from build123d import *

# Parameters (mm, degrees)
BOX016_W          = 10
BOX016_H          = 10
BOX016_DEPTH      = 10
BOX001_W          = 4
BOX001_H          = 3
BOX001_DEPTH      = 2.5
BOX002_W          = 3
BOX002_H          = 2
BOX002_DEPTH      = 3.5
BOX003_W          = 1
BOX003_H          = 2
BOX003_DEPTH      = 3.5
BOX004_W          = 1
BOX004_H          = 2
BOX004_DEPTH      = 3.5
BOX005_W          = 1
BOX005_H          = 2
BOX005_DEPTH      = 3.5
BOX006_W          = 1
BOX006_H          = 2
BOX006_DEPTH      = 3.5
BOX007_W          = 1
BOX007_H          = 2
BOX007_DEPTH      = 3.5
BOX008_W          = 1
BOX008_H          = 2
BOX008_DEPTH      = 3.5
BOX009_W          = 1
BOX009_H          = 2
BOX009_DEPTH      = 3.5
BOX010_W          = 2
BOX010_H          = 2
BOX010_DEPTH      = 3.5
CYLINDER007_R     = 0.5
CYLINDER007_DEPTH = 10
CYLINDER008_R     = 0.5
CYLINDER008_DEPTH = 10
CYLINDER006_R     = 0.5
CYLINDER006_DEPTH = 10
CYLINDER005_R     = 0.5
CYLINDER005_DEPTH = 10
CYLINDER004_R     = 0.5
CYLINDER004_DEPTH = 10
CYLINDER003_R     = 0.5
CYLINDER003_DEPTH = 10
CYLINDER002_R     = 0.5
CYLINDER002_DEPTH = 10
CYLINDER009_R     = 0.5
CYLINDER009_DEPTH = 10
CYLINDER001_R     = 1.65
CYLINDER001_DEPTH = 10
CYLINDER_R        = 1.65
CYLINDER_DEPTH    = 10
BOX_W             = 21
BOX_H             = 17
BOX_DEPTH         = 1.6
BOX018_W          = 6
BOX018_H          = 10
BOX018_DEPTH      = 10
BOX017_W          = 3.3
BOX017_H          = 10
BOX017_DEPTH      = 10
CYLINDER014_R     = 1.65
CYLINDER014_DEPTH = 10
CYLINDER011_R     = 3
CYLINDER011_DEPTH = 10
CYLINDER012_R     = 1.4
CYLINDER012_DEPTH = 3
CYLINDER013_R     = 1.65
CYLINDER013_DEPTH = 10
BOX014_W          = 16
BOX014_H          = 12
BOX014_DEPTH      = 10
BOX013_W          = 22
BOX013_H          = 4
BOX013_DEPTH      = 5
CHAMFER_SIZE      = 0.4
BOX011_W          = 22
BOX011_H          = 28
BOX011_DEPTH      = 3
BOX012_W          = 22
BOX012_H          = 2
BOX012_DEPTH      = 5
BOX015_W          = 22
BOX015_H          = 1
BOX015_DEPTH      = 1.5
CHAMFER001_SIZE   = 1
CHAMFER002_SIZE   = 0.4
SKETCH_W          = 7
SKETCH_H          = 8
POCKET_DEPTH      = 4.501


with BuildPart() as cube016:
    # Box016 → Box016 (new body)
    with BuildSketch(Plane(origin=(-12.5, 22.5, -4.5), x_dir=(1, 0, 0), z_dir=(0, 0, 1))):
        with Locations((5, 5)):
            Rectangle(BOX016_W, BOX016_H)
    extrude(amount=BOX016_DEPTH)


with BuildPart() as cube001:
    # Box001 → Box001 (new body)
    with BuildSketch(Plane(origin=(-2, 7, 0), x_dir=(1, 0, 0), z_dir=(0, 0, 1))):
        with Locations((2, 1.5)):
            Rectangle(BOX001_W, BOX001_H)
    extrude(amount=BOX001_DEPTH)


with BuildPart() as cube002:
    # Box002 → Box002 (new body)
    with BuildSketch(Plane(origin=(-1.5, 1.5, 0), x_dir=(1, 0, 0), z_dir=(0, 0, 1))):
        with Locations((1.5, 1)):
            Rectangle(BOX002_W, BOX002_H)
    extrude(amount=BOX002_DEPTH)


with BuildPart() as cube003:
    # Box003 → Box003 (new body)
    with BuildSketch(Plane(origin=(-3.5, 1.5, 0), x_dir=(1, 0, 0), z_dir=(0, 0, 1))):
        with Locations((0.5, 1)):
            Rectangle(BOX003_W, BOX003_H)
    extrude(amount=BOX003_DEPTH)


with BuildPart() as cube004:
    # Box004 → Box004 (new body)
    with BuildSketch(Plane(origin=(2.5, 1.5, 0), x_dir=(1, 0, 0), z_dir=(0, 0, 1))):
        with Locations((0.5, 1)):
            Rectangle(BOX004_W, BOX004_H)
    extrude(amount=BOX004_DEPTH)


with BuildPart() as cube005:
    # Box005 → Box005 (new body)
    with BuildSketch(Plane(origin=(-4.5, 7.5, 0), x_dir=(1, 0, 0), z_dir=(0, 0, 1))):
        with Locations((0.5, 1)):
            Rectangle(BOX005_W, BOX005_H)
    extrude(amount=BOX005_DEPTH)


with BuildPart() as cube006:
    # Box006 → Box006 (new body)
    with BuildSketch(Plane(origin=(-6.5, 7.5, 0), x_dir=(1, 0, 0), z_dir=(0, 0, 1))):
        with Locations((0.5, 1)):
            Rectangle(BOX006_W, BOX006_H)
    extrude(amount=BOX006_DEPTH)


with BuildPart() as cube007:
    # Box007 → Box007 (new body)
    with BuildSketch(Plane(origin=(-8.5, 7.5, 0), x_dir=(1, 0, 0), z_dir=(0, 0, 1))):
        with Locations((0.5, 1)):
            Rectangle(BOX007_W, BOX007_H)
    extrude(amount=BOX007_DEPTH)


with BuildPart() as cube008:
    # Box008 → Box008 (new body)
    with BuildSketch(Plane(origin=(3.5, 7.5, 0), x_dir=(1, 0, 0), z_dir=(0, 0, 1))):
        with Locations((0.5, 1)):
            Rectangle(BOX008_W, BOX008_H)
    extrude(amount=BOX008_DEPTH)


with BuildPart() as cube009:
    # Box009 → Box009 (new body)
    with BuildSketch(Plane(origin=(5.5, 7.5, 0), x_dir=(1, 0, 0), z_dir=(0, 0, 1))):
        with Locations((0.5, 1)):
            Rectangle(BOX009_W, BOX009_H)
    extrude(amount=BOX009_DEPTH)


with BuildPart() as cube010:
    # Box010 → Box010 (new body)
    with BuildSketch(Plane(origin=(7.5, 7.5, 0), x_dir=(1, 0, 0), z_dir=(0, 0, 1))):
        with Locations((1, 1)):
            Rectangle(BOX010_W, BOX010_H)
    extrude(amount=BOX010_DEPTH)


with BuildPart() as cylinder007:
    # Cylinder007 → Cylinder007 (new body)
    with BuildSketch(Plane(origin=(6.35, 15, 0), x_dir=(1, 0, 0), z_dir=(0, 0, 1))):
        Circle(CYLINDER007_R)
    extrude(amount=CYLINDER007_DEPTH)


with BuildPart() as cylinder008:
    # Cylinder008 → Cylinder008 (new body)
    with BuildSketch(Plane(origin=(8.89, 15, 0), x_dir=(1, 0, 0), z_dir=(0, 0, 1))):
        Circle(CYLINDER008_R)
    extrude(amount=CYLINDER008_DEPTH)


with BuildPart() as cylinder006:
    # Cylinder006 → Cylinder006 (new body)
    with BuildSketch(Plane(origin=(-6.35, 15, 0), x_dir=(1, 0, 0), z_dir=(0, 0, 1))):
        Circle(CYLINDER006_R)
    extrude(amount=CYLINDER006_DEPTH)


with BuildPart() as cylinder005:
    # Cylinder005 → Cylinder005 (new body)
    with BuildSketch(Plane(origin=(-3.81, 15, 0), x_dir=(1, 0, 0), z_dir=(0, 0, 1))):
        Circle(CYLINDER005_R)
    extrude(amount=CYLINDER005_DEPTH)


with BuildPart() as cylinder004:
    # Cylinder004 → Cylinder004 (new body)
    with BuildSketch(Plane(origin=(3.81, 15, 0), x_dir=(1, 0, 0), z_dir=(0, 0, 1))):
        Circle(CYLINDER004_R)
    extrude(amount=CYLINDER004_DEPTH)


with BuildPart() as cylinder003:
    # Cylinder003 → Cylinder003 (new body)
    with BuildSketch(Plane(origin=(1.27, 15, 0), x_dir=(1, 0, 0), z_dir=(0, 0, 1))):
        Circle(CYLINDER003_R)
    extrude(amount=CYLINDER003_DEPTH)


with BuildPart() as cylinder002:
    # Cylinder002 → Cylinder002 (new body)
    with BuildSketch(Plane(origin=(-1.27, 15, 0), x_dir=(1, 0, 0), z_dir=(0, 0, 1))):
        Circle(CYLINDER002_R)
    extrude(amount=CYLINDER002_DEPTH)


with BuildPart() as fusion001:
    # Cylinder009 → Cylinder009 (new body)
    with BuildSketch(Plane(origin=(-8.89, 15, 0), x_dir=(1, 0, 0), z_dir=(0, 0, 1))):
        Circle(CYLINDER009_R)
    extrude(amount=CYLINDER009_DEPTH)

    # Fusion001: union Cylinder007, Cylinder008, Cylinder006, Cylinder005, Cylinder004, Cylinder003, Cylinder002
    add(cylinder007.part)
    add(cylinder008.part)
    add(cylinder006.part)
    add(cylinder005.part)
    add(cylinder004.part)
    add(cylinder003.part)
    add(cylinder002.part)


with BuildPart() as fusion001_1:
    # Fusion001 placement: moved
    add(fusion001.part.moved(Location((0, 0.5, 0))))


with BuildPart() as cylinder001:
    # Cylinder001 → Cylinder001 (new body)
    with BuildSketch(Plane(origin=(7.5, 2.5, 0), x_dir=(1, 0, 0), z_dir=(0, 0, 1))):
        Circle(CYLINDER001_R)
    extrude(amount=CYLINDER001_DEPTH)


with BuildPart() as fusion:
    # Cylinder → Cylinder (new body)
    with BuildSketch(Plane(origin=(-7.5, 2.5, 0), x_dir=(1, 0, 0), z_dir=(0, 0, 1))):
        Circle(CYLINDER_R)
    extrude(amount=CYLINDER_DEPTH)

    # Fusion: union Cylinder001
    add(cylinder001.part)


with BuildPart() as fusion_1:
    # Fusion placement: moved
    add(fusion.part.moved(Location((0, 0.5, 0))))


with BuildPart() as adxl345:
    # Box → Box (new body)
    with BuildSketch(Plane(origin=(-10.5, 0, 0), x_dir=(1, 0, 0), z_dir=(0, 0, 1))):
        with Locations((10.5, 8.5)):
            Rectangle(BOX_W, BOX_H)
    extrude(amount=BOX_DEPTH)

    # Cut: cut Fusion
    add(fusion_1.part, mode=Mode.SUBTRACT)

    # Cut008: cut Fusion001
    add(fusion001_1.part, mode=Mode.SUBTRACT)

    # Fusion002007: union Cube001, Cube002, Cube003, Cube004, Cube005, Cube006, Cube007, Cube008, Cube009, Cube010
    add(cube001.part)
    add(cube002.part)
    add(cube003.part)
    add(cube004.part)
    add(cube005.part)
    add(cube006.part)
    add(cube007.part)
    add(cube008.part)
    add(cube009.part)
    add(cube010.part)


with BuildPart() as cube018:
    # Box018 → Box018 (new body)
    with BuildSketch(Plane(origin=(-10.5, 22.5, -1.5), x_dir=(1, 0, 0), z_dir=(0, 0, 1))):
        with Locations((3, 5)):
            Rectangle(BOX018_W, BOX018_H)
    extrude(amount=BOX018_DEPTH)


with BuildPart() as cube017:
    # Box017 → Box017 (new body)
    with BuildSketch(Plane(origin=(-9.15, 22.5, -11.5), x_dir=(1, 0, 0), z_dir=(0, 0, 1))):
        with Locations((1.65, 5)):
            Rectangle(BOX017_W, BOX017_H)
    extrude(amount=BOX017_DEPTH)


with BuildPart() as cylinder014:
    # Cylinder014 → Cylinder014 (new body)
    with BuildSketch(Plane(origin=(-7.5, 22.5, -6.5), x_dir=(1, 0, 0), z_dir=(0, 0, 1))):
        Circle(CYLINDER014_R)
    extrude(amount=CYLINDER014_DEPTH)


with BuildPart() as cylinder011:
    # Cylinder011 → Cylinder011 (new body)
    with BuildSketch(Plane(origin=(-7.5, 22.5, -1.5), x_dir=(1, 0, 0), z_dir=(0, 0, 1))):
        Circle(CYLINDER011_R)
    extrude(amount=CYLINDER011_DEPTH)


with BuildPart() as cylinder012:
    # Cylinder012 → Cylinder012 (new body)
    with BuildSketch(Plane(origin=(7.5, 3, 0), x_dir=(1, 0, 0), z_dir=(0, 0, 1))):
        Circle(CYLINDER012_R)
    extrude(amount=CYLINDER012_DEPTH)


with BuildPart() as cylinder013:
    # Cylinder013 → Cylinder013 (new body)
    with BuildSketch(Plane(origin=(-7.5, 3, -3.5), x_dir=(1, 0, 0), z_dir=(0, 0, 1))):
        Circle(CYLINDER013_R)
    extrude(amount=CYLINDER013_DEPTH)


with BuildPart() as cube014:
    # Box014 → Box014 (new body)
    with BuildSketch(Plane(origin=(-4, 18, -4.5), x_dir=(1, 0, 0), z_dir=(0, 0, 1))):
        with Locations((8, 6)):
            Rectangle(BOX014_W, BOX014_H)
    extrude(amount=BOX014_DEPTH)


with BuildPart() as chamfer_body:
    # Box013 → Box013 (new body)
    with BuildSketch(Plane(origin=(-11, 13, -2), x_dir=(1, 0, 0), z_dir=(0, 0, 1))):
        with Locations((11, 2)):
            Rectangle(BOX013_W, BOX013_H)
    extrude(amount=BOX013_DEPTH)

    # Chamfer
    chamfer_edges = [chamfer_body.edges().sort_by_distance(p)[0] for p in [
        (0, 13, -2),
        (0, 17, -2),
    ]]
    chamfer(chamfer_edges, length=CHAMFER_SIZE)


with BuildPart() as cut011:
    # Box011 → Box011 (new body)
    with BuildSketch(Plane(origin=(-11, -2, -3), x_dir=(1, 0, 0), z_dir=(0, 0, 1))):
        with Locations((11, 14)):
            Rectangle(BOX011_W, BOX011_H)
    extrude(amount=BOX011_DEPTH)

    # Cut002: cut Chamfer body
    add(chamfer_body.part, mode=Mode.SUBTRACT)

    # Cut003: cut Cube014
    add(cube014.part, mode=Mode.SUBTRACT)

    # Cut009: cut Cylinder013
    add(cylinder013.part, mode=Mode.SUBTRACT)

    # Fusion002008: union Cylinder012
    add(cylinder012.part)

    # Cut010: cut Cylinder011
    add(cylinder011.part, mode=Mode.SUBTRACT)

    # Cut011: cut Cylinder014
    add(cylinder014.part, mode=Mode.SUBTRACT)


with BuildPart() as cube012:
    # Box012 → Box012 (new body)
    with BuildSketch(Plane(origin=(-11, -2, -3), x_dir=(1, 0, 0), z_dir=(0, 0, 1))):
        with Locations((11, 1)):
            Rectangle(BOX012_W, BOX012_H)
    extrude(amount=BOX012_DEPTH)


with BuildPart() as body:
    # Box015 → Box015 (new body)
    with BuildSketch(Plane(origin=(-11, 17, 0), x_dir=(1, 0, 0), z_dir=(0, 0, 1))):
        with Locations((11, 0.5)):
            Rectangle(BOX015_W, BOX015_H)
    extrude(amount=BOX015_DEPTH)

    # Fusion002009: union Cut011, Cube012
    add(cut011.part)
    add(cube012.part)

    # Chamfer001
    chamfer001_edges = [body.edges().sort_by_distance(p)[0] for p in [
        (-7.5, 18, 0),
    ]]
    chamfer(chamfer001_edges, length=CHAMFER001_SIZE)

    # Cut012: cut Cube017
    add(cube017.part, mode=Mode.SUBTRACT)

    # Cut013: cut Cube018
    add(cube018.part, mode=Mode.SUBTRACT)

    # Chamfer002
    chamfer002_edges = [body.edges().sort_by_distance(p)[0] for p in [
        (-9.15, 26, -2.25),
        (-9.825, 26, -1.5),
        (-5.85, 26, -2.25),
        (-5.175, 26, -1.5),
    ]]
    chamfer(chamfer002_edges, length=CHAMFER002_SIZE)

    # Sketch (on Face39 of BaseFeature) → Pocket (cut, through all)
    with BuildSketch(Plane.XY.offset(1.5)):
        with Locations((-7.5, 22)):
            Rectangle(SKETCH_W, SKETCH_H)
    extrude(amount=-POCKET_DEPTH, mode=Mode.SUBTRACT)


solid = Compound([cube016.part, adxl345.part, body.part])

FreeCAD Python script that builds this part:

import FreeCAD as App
import Part
import Sketcher
from FreeCAD import Vector


def edges_at(feature, points):
    """Names of the edges that pass closest to the given points."""
    edges = feature.Shape.Edges
    near = lambda p: min(range(len(edges)), key=lambda i: edges[i].distToShape(Part.Vertex(*p))[0])
    return sorted({f"Edge{near(p) + 1}" for p in points})

doc = App.newDocument("Part")
body = doc.addObject("PartDesign::Body", "Body")

# Sketch on XY plane
sketch1 = body.newObject("Sketcher::SketchObject", "Sketch")
sketch1.AttachmentSupport = (doc.getObject("XY_Plane"), [""])
sketch1.MapMode = "FlatFace"
sketch1.AttachmentOffset = App.Placement(Vector(0, 0, -4.5), App.Rotation())
sketch1.addGeometry([
    Part.LineSegment(Vector(-12, 32, 0), Vector(-12, 22, 0)),
    Part.LineSegment(Vector(-12, 22, 0), Vector(-2, 22, 0)),
    Part.LineSegment(Vector(-2, 22, 0), Vector(-2, 32, 0)),
    Part.LineSegment(Vector(-2, 32, 0), Vector(-12, 32, 0)),
], False)
sketch1.addConstraint([
    Sketcher.Constraint("Coincident", 0, 2, 1, 1),
    Sketcher.Constraint("Coincident", 1, 2, 2, 1),
    Sketcher.Constraint("Coincident", 2, 2, 3, 1),
    Sketcher.Constraint("Coincident", 3, 2, 0, 1),
    Sketcher.Constraint("Vertical", 0),
    Sketcher.Constraint("Horizontal", 1),
    Sketcher.Constraint("Vertical", 2),
    Sketcher.Constraint("Horizontal", 3),
    Sketcher.Constraint("Equal", 3, 0),
    Sketcher.Constraint("DistanceX", 1, 1, 1, 2, 10.0),
    Sketcher.Constraint("DistanceX", 0, 2, -1, 1, 12.5),
    Sketcher.Constraint("DistanceY", -1, 1, 0, 2, 22.5),
])
pad1 = body.newObject("PartDesign::Pad", "Pad")
pad1.Profile = sketch1
pad1.Length = 10
body2 = doc.addObject("PartDesign::Body", "Body001")

# Sketch on XY plane
sketch2 = body2.newObject("Sketcher::SketchObject", "Sketch001")
sketch2.AttachmentSupport = (doc.getObject("XY_Plane001"), [""])
sketch2.MapMode = "FlatFace"
sketch2.addGeometry([
    Part.LineSegment(Vector(-2, 10, 0), Vector(-2, 7, 0)),
    Part.LineSegment(Vector(-2, 7, 0), Vector(2, 7, 0)),
    Part.LineSegment(Vector(2, 7, 0), Vector(2, 10, 0)),
    Part.LineSegment(Vector(2, 10, 0), Vector(-2, 10, 0)),
], False)
sketch2.addConstraint([
    Sketcher.Constraint("Coincident", 0, 2, 1, 1),
    Sketcher.Constraint("Coincident", 1, 2, 2, 1),
    Sketcher.Constraint("Coincident", 2, 2, 3, 1),
    Sketcher.Constraint("Coincident", 3, 2, 0, 1),
    Sketcher.Constraint("Vertical", 0),
    Sketcher.Constraint("Horizontal", 1),
    Sketcher.Constraint("Vertical", 2),
    Sketcher.Constraint("Horizontal", 3),
    Sketcher.Constraint("DistanceX", 1, 1, 1, 2, 4.0),
    Sketcher.Constraint("DistanceY", 0, 2, 0, 1, 3.0),
    Sketcher.Constraint("DistanceX", 0, 2, -1, 1, 2.0),
    Sketcher.Constraint("DistanceY", -1, 1, 0, 2, 7.0),
])
pad2 = body2.newObject("PartDesign::Pad", "Pad001")
pad2.Profile = sketch2
pad2.Length = 2.5
body3 = doc.addObject("PartDesign::Body", "Body002")

# Sketch on XY plane
sketch3 = body3.newObject("Sketcher::SketchObject", "Sketch002")
sketch3.AttachmentSupport = (doc.getObject("XY_Plane002"), [""])
sketch3.MapMode = "FlatFace"
sketch3.addGeometry([
    Part.LineSegment(Vector(-1.5, 3.5, 0), Vector(-1.5, 1.5, 0)),
    Part.LineSegment(Vector(-1.5, 1.5, 0), Vector(1.5, 1.5, 0)),
    Part.LineSegment(Vector(1.5, 1.5, 0), Vector(1.5, 3.5, 0)),
    Part.LineSegment(Vector(1.5, 3.5, 0), Vector(-1.5, 3.5, 0)),
], False)
sketch3.addConstraint([
    Sketcher.Constraint("Coincident", 0, 2, 1, 1),
    Sketcher.Constraint("Coincident", 1, 2, 2, 1),
    Sketcher.Constraint("Coincident", 2, 2, 3, 1),
    Sketcher.Constraint("Coincident", 3, 2, 0, 1),
    Sketcher.Constraint("Vertical", 0),
    Sketcher.Constraint("Horizontal", 1),
    Sketcher.Constraint("Vertical", 2),
    Sketcher.Constraint("Horizontal", 3),
    Sketcher.Constraint("DistanceX", 1, 1, 1, 2, 3.0),
    Sketcher.Constraint("DistanceY", 0, 2, 0, 1, 2.0),
    Sketcher.Constraint("DistanceX", 0, 2, -1, 1, 1.5),
    Sketcher.Constraint("DistanceY", -1, 1, 0, 2, 1.5),
])
pad3 = body3.newObject("PartDesign::Pad", "Pad002")
pad3.Profile = sketch3
pad3.Length = 3.5
body4 = doc.addObject("PartDesign::Body", "Body003")

# Sketch on XY plane
sketch4 = body4.newObject("Sketcher::SketchObject", "Sketch003")
sketch4.AttachmentSupport = (doc.getObject("XY_Plane003"), [""])
sketch4.MapMode = "FlatFace"
sketch4.addGeometry([
    Part.LineSegment(Vector(-3.5, 3.5, 0), Vector(-3.5, 1.5, 0)),
    Part.LineSegment(Vector(-3.5, 1.5, 0), Vector(-2.5, 1.5, 0)),
    Part.LineSegment(Vector(-2.5, 1.5, 0), Vector(-2.5, 3.5, 0)),
    Part.LineSegment(Vector(-2.5, 3.5, 0), Vector(-3.5, 3.5, 0)),
], False)
sketch4.addConstraint([
    Sketcher.Constraint("Coincident", 0, 2, 1, 1),
    Sketcher.Constraint("Coincident", 1, 2, 2, 1),
    Sketcher.Constraint("Coincident", 2, 2, 3, 1),
    Sketcher.Constraint("Coincident", 3, 2, 0, 1),
    Sketcher.Constraint("Vertical", 0),
    Sketcher.Constraint("Horizontal", 1),
    Sketcher.Constraint("Vertical", 2),
    Sketcher.Constraint("Horizontal", 3),
    Sketcher.Constraint("DistanceX", 1, 1, 1, 2, 1.0),
    Sketcher.Constraint("DistanceY", 0, 2, 0, 1, 2.0),
    Sketcher.Constraint("DistanceX", 0, 2, -1, 1, 3.5),
    Sketcher.Constraint("DistanceY", -1, 1, 0, 2, 1.5),
])
pad4 = body4.newObject("PartDesign::Pad", "Pad003")
pad4.Profile = sketch4
pad4.Length = 3.5
body5 = doc.addObject("PartDesign::Body", "Body004")

# Sketch on XY plane
sketch5 = body5.newObject("Sketcher::SketchObject", "Sketch004")
sketch5.AttachmentSupport = (doc.getObject("XY_Plane004"), [""])
sketch5.MapMode = "FlatFace"
sketch5.addGeometry([
    Part.LineSegment(Vector(2.5, 3.5, 0), Vector(2.5, 1.5, 0)),
    Part.LineSegment(Vector(2.5, 1.5, 0), Vector(3.5, 1.5, 0)),
    Part.LineSegment(Vector(3.5, 1.5, 0), Vector(3.5, 3.5, 0)),
    Part.LineSegment(Vector(3.5, 3.5, 0), Vector(2.5, 3.5, 0)),
], False)
sketch5.addConstraint([
    Sketcher.Constraint("Coincident", 0, 2, 1, 1),
    Sketcher.Constraint("Coincident", 1, 2, 2, 1),
    Sketcher.Constraint("Coincident", 2, 2, 3, 1),
    Sketcher.Constraint("Coincident", 3, 2, 0, 1),
    Sketcher.Constraint("Vertical", 0),
    Sketcher.Constraint("Horizontal", 1),
    Sketcher.Constraint("Vertical", 2),
    Sketcher.Constraint("Horizontal", 3),
    Sketcher.Constraint("DistanceX", 1, 1, 1, 2, 1.0),
    Sketcher.Constraint("DistanceY", 0, 2, 0, 1, 2.0),
    Sketcher.Constraint("DistanceX", -1, 1, 0, 2, 2.5),
    Sketcher.Constraint("DistanceY", -1, 1, 0, 2, 1.5),
])
pad5 = body5.newObject("PartDesign::Pad", "Pad004")
pad5.Profile = sketch5
pad5.Length = 3.5
body6 = doc.addObject("PartDesign::Body", "Body005")

# Sketch on XY plane
sketch6 = body6.newObject("Sketcher::SketchObject", "Sketch005")
sketch6.AttachmentSupport = (doc.getObject("XY_Plane005"), [""])
sketch6.MapMode = "FlatFace"
sketch6.addGeometry([
    Part.LineSegment(Vector(-4.5, 9.5, 0), Vector(-4.5, 7.5, 0)),
    Part.LineSegment(Vector(-4.5, 7.5, 0), Vector(-3.5, 7.5, 0)),
    Part.LineSegment(Vector(-3.5, 7.5, 0), Vector(-3.5, 9.5, 0)),
    Part.LineSegment(Vector(-3.5, 9.5, 0), Vector(-4.5, 9.5, 0)),
], False)
sketch6.addConstraint([
    Sketcher.Constraint("Coincident", 0, 2, 1, 1),
    Sketcher.Constraint("Coincident", 1, 2, 2, 1),
    Sketcher.Constraint("Coincident", 2, 2, 3, 1),
    Sketcher.Constraint("Coincident", 3, 2, 0, 1),
    Sketcher.Constraint("Vertical", 0),
    Sketcher.Constraint("Horizontal", 1),
    Sketcher.Constraint("Vertical", 2),
    Sketcher.Constraint("Horizontal", 3),
    Sketcher.Constraint("DistanceX", 1, 1, 1, 2, 1.0),
    Sketcher.Constraint("DistanceY", 0, 2, 0, 1, 2.0),
    Sketcher.Constraint("DistanceX", 0, 2, -1, 1, 4.5),
    Sketcher.Constraint("DistanceY", -1, 1, 0, 2, 7.5),
])
pad6 = body6.newObject("PartDesign::Pad", "Pad005")
pad6.Profile = sketch6
pad6.Length = 3.5
body7 = doc.addObject("PartDesign::Body", "Body006")

# Sketch on XY plane
sketch7 = body7.newObject("Sketcher::SketchObject", "Sketch006")
sketch7.AttachmentSupport = (doc.getObject("XY_Plane006"), [""])
sketch7.MapMode = "FlatFace"
sketch7.addGeometry([
    Part.LineSegment(Vector(-6.5, 9.5, 0), Vector(-6.5, 7.5, 0)),
    Part.LineSegment(Vector(-6.5, 7.5, 0), Vector(-5.5, 7.5, 0)),
    Part.LineSegment(Vector(-5.5, 7.5, 0), Vector(-5.5, 9.5, 0)),
    Part.LineSegment(Vector(-5.5, 9.5, 0), Vector(-6.5, 9.5, 0)),
], False)
sketch7.addConstraint([
    Sketcher.Constraint("Coincident", 0, 2, 1, 1),
    Sketcher.Constraint("Coincident", 1, 2, 2, 1),
    Sketcher.Constraint("Coincident", 2, 2, 3, 1),
    Sketcher.Constraint("Coincident", 3, 2, 0, 1),
    Sketcher.Constraint("Vertical", 0),
    Sketcher.Constraint("Horizontal", 1),
    Sketcher.Constraint("Vertical", 2),
    Sketcher.Constraint("Horizontal", 3),
    Sketcher.Constraint("DistanceX", 1, 1, 1, 2, 1.0),
    Sketcher.Constraint("DistanceY", 0, 2, 0, 1, 2.0),
    Sketcher.Constraint("DistanceX", 0, 2, -1, 1, 6.5),
    Sketcher.Constraint("DistanceY", -1, 1, 0, 2, 7.5),
])
pad7 = body7.newObject("PartDesign::Pad", "Pad006")
pad7.Profile = sketch7
pad7.Length = 3.5
body8 = doc.addObject("PartDesign::Body", "Body007")

# Sketch on XY plane
sketch8 = body8.newObject("Sketcher::SketchObject", "Sketch007")
sketch8.AttachmentSupport = (doc.getObject("XY_Plane007"), [""])
sketch8.MapMode = "FlatFace"
sketch8.addGeometry([
    Part.LineSegment(Vector(-8.5, 9.5, 0), Vector(-8.5, 7.5, 0)),
    Part.LineSegment(Vector(-8.5, 7.5, 0), Vector(-7.5, 7.5, 0)),
    Part.LineSegment(Vector(-7.5, 7.5, 0), Vector(-7.5, 9.5, 0)),
    Part.LineSegment(Vector(-7.5, 9.5, 0), Vector(-8.5, 9.5, 0)),
], False)
sketch8.addConstraint([
    Sketcher.Constraint("Coincident", 0, 2, 1, 1),
    Sketcher.Constraint("Coincident", 1, 2, 2, 1),
    Sketcher.Constraint("Coincident", 2, 2, 3, 1),
    Sketcher.Constraint("Coincident", 3, 2, 0, 1),
    Sketcher.Constraint("Vertical", 0),
    Sketcher.Constraint("Horizontal", 1),
    Sketcher.Constraint("Vertical", 2),
    Sketcher.Constraint("Horizontal", 3),
    Sketcher.Constraint("DistanceX", 1, 1, 1, 2, 1.0),
    Sketcher.Constraint("DistanceY", 0, 2, 0, 1, 2.0),
    Sketcher.Constraint("DistanceX", 0, 2, -1, 1, 8.5),
    Sketcher.Constraint("DistanceY", -1, 1, 0, 2, 7.5),
])
pad8 = body8.newObject("PartDesign::Pad", "Pad007")
pad8.Profile = sketch8
pad8.Length = 3.5
body9 = doc.addObject("PartDesign::Body", "Body008")

# Sketch on XY plane
sketch9 = body9.newObject("Sketcher::SketchObject", "Sketch008")
sketch9.AttachmentSupport = (doc.getObject("XY_Plane008"), [""])
sketch9.MapMode = "FlatFace"
sketch9.addGeometry([
    Part.LineSegment(Vector(3.5, 9.5, 0), Vector(3.5, 7.5, 0)),
    Part.LineSegment(Vector(3.5, 7.5, 0), Vector(4.5, 7.5, 0)),
    Part.LineSegment(Vector(4.5, 7.5, 0), Vector(4.5, 9.5, 0)),
    Part.LineSegment(Vector(4.5, 9.5, 0), Vector(3.5, 9.5, 0)),
], False)
sketch9.addConstraint([
    Sketcher.Constraint("Coincident", 0, 2, 1, 1),
    Sketcher.Constraint("Coincident", 1, 2, 2, 1),
    Sketcher.Constraint("Coincident", 2, 2, 3, 1),
    Sketcher.Constraint("Coincident", 3, 2, 0, 1),
    Sketcher.Constraint("Vertical", 0),
    Sketcher.Constraint("Horizontal", 1),
    Sketcher.Constraint("Vertical", 2),
    Sketcher.Constraint("Horizontal", 3),
    Sketcher.Constraint("DistanceX", 1, 1, 1, 2, 1.0),
    Sketcher.Constraint("DistanceY", 0, 2, 0, 1, 2.0),
    Sketcher.Constraint("DistanceX", -1, 1, 0, 2, 3.5),
    Sketcher.Constraint("DistanceY", -1, 1, 0, 2, 7.5),
])
pad9 = body9.newObject("PartDesign::Pad", "Pad008")
pad9.Profile = sketch9
pad9.Length = 3.5
body10 = doc.addObject("PartDesign::Body", "Body009")

# Sketch on XY plane
sketch10 = body10.newObject("Sketcher::SketchObject", "Sketch009")
sketch10.AttachmentSupport = (doc.getObject("XY_Plane009"), [""])
sketch10.MapMode = "FlatFace"
sketch10.addGeometry([
    Part.LineSegment(Vector(5.5, 9.5, 0), Vector(5.5, 7.5, 0)),
    Part.LineSegment(Vector(5.5, 7.5, 0), Vector(6.5, 7.5, 0)),
    Part.LineSegment(Vector(6.5, 7.5, 0), Vector(6.5, 9.5, 0)),
    Part.LineSegment(Vector(6.5, 9.5, 0), Vector(5.5, 9.5, 0)),
], False)
sketch10.addConstraint([
    Sketcher.Constraint("Coincident", 0, 2, 1, 1),
    Sketcher.Constraint("Coincident", 1, 2, 2, 1),
    Sketcher.Constraint("Coincident", 2, 2, 3, 1),
    Sketcher.Constraint("Coincident", 3, 2, 0, 1),
    Sketcher.Constraint("Vertical", 0),
    Sketcher.Constraint("Horizontal", 1),
    Sketcher.Constraint("Vertical", 2),
    Sketcher.Constraint("Horizontal", 3),
    Sketcher.Constraint("DistanceX", 1, 1, 1, 2, 1.0),
    Sketcher.Constraint("DistanceY", 0, 2, 0, 1, 2.0),
    Sketcher.Constraint("DistanceX", -1, 1, 0, 2, 5.5),
    Sketcher.Constraint("DistanceY", -1, 1, 0, 2, 7.5),
])
pad10 = body10.newObject("PartDesign::Pad", "Pad009")
pad10.Profile = sketch10
pad10.Length = 3.5
body11 = doc.addObject("PartDesign::Body", "Body010")

# Sketch on XY plane
sketch11 = body11.newObject("Sketcher::SketchObject", "Sketch010")
sketch11.AttachmentSupport = (doc.getObject("XY_Plane010"), [""])
sketch11.MapMode = "FlatFace"
sketch11.addGeometry([
    Part.LineSegment(Vector(7.5, 9.5, 0), Vector(7.5, 7.5, 0)),
    Part.LineSegment(Vector(7.5, 7.5, 0), Vector(9.5, 7.5, 0)),
    Part.LineSegment(Vector(9.5, 7.5, 0), Vector(9.5, 9.5, 0)),
    Part.LineSegment(Vector(9.5, 9.5, 0), Vector(7.5, 9.5, 0)),
], False)
sketch11.addConstraint([
    Sketcher.Constraint("Coincident", 0, 2, 1, 1),
    Sketcher.Constraint("Coincident", 1, 2, 2, 1),
    Sketcher.Constraint("Coincident", 2, 2, 3, 1),
    Sketcher.Constraint("Coincident", 3, 2, 0, 1),
    Sketcher.Constraint("Vertical", 0),
    Sketcher.Constraint("Horizontal", 1),
    Sketcher.Constraint("Vertical", 2),
    Sketcher.Constraint("Horizontal", 3),
    Sketcher.Constraint("Equal", 3, 0),
    Sketcher.Constraint("DistanceX", 1, 1, 1, 2, 2.0),
    Sketcher.Constraint("DistanceX", -1, 1, 0, 2, 7.5),
    Sketcher.Constraint("DistanceY", -1, 1, 0, 2, 7.5),
])
pad11 = body11.newObject("PartDesign::Pad", "Pad010")
pad11.Profile = sketch11
pad11.Length = 3.5
body12 = doc.addObject("PartDesign::Body", "Body011")

# Sketch on XY plane
sketch12 = body12.newObject("Sketcher::SketchObject", "Sketch011")
sketch12.AttachmentSupport = (doc.getObject("XY_Plane011"), [""])
sketch12.MapMode = "FlatFace"
sketch12.addGeometry(Part.Circle(Vector(6.3, 15, 0), Vector(0, 0, 1), 0.5), False)
sketch12.addConstraint([
    Sketcher.Constraint("Diameter", 0, 1.0),
    Sketcher.Constraint("DistanceY", -1, 1, 0, 3, 15.0),
    Sketcher.Constraint("DistanceX", -1, 1, 0, 3, 6.35),
])
pad12 = body12.newObject("PartDesign::Pad", "Pad011")
pad12.Profile = sketch12
pad12.Length = 10
body13 = doc.addObject("PartDesign::Body", "Body012")

# Sketch on XY plane
sketch13 = body13.newObject("Sketcher::SketchObject", "Sketch012")
sketch13.AttachmentSupport = (doc.getObject("XY_Plane012"), [""])
sketch13.MapMode = "FlatFace"
sketch13.addGeometry(Part.Circle(Vector(8.9, 15, 0), Vector(0, 0, 1), 0.5), False)
sketch13.addConstraint([
    Sketcher.Constraint("Diameter", 0, 1.0),
    Sketcher.Constraint("DistanceY", -1, 1, 0, 3, 15.0),
    Sketcher.Constraint("DistanceX", -1, 1, 0, 3, 8.89),
])
pad13 = body13.newObject("PartDesign::Pad", "Pad012")
pad13.Profile = sketch13
pad13.Length = 10
body14 = doc.addObject("PartDesign::Body", "Body013")

# Sketch on XY plane
sketch14 = body14.newObject("Sketcher::SketchObject", "Sketch013")
sketch14.AttachmentSupport = (doc.getObject("XY_Plane013"), [""])
sketch14.MapMode = "FlatFace"
sketch14.addGeometry(Part.Circle(Vector(-6.3, 15, 0), Vector(0, 0, 1), 0.5), False)
sketch14.addConstraint([
    Sketcher.Constraint("Diameter", 0, 1.0),
    Sketcher.Constraint("DistanceY", -1, 1, 0, 3, 15.0),
    Sketcher.Constraint("DistanceX", 0, 3, -1, 1, 6.35),
])
pad14 = body14.newObject("PartDesign::Pad", "Pad013")
pad14.Profile = sketch14
pad14.Length = 10
body15 = doc.addObject("PartDesign::Body", "Body014")

# Sketch on XY plane
sketch15 = body15.newObject("Sketcher::SketchObject", "Sketch014")
sketch15.AttachmentSupport = (doc.getObject("XY_Plane014"), [""])
sketch15.MapMode = "FlatFace"
sketch15.addGeometry(Part.Circle(Vector(-3.8, 15, 0), Vector(0, 0, 1), 0.5), False)
sketch15.addConstraint([
    Sketcher.Constraint("Diameter", 0, 1.0),
    Sketcher.Constraint("DistanceY", -1, 1, 0, 3, 15.0),
    Sketcher.Constraint("DistanceX", 0, 3, -1, 1, 3.81),
])
pad15 = body15.newObject("PartDesign::Pad", "Pad014")
pad15.Profile = sketch15
pad15.Length = 10
body16 = doc.addObject("PartDesign::Body", "Body015")

# Sketch on XY plane
sketch16 = body16.newObject("Sketcher::SketchObject", "Sketch015")
sketch16.AttachmentSupport = (doc.getObject("XY_Plane015"), [""])
sketch16.MapMode = "FlatFace"
sketch16.addGeometry(Part.Circle(Vector(3.8, 15, 0), Vector(0, 0, 1), 0.5), False)
sketch16.addConstraint([
    Sketcher.Constraint("Diameter", 0, 1.0),
    Sketcher.Constraint("DistanceY", -1, 1, 0, 3, 15.0),
    Sketcher.Constraint("DistanceX", -1, 1, 0, 3, 3.81),
])
pad16 = body16.newObject("PartDesign::Pad", "Pad015")
pad16.Profile = sketch16
pad16.Length = 10
body17 = doc.addObject("PartDesign::Body", "Body016")

# Sketch on XY plane
sketch17 = body17.newObject("Sketcher::SketchObject", "Sketch016")
sketch17.AttachmentSupport = (doc.getObject("XY_Plane016"), [""])
sketch17.MapMode = "FlatFace"
sketch17.addGeometry(Part.Circle(Vector(1.3, 15, 0), Vector(0, 0, 1), 0.5), False)
sketch17.addConstraint([
    Sketcher.Constraint("Diameter", 0, 1.0),
    Sketcher.Constraint("DistanceY", -1, 1, 0, 3, 15.0),
    Sketcher.Constraint("DistanceX", -1, 1, 0, 3, 1.27),
])
pad17 = body17.newObject("PartDesign::Pad", "Pad016")
pad17.Profile = sketch17
pad17.Length = 10
body18 = doc.addObject("PartDesign::Body", "Body017")

# Sketch on XY plane
sketch18 = body18.newObject("Sketcher::SketchObject", "Sketch017")
sketch18.AttachmentSupport = (doc.getObject("XY_Plane017"), [""])
sketch18.MapMode = "FlatFace"
sketch18.addGeometry(Part.Circle(Vector(-1.3, 15, 0), Vector(0, 0, 1), 0.5), False)
sketch18.addConstraint([
    Sketcher.Constraint("Diameter", 0, 1.0),
    Sketcher.Constraint("DistanceY", -1, 1, 0, 3, 15.0),
    Sketcher.Constraint("DistanceX", 0, 3, -1, 1, 1.27),
])
pad18 = body18.newObject("PartDesign::Pad", "Pad017")
pad18.Profile = sketch18
pad18.Length = 10
body19 = doc.addObject("PartDesign::Body", "Body018")
body19.AllowCompound = True

# Sketch on XY plane
sketch19 = body19.newObject("Sketcher::SketchObject", "Sketch018")
sketch19.AttachmentSupport = (doc.getObject("XY_Plane018"), [""])
sketch19.MapMode = "FlatFace"
sketch19.addGeometry(Part.Circle(Vector(-8.9, 15, 0), Vector(0, 0, 1), 0.5), False)
sketch19.addConstraint([
    Sketcher.Constraint("Diameter", 0, 1.0),
    Sketcher.Constraint("DistanceY", -1, 1, 0, 3, 15.0),
    Sketcher.Constraint("DistanceX", 0, 3, -1, 1, 8.89),
])
pad19 = body19.newObject("PartDesign::Pad", "Pad018")
pad19.Profile = sketch19
pad19.Length = 10
doc.recompute()

boolean = body19.newObject("PartDesign::Boolean", "Boolean")
boolean.Type = "Fuse"
boolean.addObjects([body12])
doc.recompute()

boolean2 = body19.newObject("PartDesign::Boolean", "Boolean001")
boolean2.Type = "Fuse"
boolean2.addObjects([body13])
doc.recompute()

boolean3 = body19.newObject("PartDesign::Boolean", "Boolean002")
boolean3.Type = "Fuse"
boolean3.addObjects([body14])
doc.recompute()

boolean4 = body19.newObject("PartDesign::Boolean", "Boolean003")
boolean4.Type = "Fuse"
boolean4.addObjects([body15])
doc.recompute()

boolean5 = body19.newObject("PartDesign::Boolean", "Boolean004")
boolean5.Type = "Fuse"
boolean5.addObjects([body16])
doc.recompute()

boolean6 = body19.newObject("PartDesign::Boolean", "Boolean005")
boolean6.Type = "Fuse"
boolean6.addObjects([body17])
doc.recompute()

boolean7 = body19.newObject("PartDesign::Boolean", "Boolean006")
boolean7.Type = "Fuse"
boolean7.addObjects([body18])
body20 = doc.addObject("PartDesign::Body", "Body019")
body20.AllowCompound = True
doc.recompute()

body19.Placement = App.Placement(Vector(0, 0.5, 0), App.Rotation(Vector(0, 0, 1), 0))
boolean8 = body20.newObject("PartDesign::Boolean", "Boolean007")
boolean8.Type = "Fuse"
boolean8.addObjects([body19])
body21 = doc.addObject("PartDesign::Body", "Body020")

# Sketch on XY plane
sketch20 = body21.newObject("Sketcher::SketchObject", "Sketch019")
sketch20.AttachmentSupport = (doc.getObject("XY_Plane020"), [""])
sketch20.MapMode = "FlatFace"
sketch20.addGeometry(Part.Circle(Vector(7.5, 2.5, 0), Vector(0, 0, 1), 1.6), False)
sketch20.addConstraint([
    Sketcher.Constraint("Diameter", 0, 3.3),
    Sketcher.Constraint("DistanceX", -1, 1, 0, 3, 7.5),
    Sketcher.Constraint("DistanceY", -1, 1, 0, 3, 2.5),
])
pad20 = body21.newObject("PartDesign::Pad", "Pad019")
pad20.Profile = sketch20
pad20.Length = 10
body22 = doc.addObject("PartDesign::Body", "Body021")
body22.AllowCompound = True

# Sketch on XY plane
sketch21 = body22.newObject("Sketcher::SketchObject", "Sketch020")
sketch21.AttachmentSupport = (doc.getObject("XY_Plane021"), [""])
sketch21.MapMode = "FlatFace"
sketch21.addGeometry(Part.Circle(Vector(-7.5, 2.5, 0), Vector(0, 0, 1), 1.6), False)
sketch21.addConstraint([
    Sketcher.Constraint("Diameter", 0, 3.3),
    Sketcher.Constraint("DistanceX", 0, 3, -1, 1, 7.5),
    Sketcher.Constraint("DistanceY", -1, 1, 0, 3, 2.5),
])
pad21 = body22.newObject("PartDesign::Pad", "Pad020")
pad21.Profile = sketch21
pad21.Length = 10
doc.recompute()

boolean9 = body22.newObject("PartDesign::Boolean", "Boolean008")
boolean9.Type = "Fuse"
boolean9.addObjects([body21])
body23 = doc.addObject("PartDesign::Body", "Body022")
body23.AllowCompound = True
doc.recompute()

body22.Placement = App.Placement(Vector(0, 0.5, 0), App.Rotation(Vector(0, 0, 1), 0))
boolean10 = body23.newObject("PartDesign::Boolean", "Boolean009")
boolean10.Type = "Fuse"
boolean10.addObjects([body22])
body24 = doc.addObject("PartDesign::Body", "Body023")

# Sketch on XY plane
sketch22 = body24.newObject("Sketcher::SketchObject", "Sketch021")
sketch22.AttachmentSupport = (doc.getObject("XY_Plane023"), [""])
sketch22.MapMode = "FlatFace"
sketch22.addGeometry([
    Part.LineSegment(Vector(-10, 17, 0), Vector(-10, 0, 0)),
    Part.LineSegment(Vector(-10, 0, 0), Vector(10, 0, 0)),
    Part.LineSegment(Vector(10, 0, 0), Vector(10, 17, 0)),
    Part.LineSegment(Vector(10, 17, 0), Vector(-10, 17, 0)),
], False)
sketch22.addConstraint([
    Sketcher.Constraint("Coincident", 0, 2, 1, 1),
    Sketcher.Constraint("Coincident", 1, 2, 2, 1),
    Sketcher.Constraint("Coincident", 2, 2, 3, 1),
    Sketcher.Constraint("Coincident", 3, 2, 0, 1),
    Sketcher.Constraint("Vertical", 0),
    Sketcher.Constraint("Horizontal", 1),
    Sketcher.Constraint("Vertical", 2),
    Sketcher.Constraint("Horizontal", 3),
    Sketcher.Constraint("Symmetric", 0, 2, 1, 2, -1, 1),
    Sketcher.Constraint("DistanceX", 1, 1, 1, 2, 21.0),
    Sketcher.Constraint("DistanceY", 0, 2, 0, 1, 17.0),
])
pad22 = body24.newObject("PartDesign::Pad", "Pad021")
pad22.Profile = sketch22
pad22.Length = 1.6
doc.recompute()

boolean11 = body24.newObject("PartDesign::Boolean", "Boolean010")
boolean11.Type = "Cut"
boolean11.addObjects([body23])
doc.recompute()

boolean12 = body24.newObject("PartDesign::Boolean", "Boolean011")
boolean12.Type = "Cut"
boolean12.addObjects([body20])
doc.recompute()

boolean13 = body24.newObject("PartDesign::Boolean", "Boolean012")
boolean13.Type = "Fuse"
boolean13.addObjects([body2])
doc.recompute()

boolean14 = body24.newObject("PartDesign::Boolean", "Boolean013")
boolean14.Type = "Fuse"
boolean14.addObjects([body3])
doc.recompute()

boolean15 = body24.newObject("PartDesign::Boolean", "Boolean014")
boolean15.Type = "Fuse"
boolean15.addObjects([body4])
doc.recompute()

boolean16 = body24.newObject("PartDesign::Boolean", "Boolean015")
boolean16.Type = "Fuse"
boolean16.addObjects([body5])
doc.recompute()

boolean17 = body24.newObject("PartDesign::Boolean", "Boolean016")
boolean17.Type = "Fuse"
boolean17.addObjects([body6])
doc.recompute()

boolean18 = body24.newObject("PartDesign::Boolean", "Boolean017")
boolean18.Type = "Fuse"
boolean18.addObjects([body7])
doc.recompute()

boolean19 = body24.newObject("PartDesign::Boolean", "Boolean018")
boolean19.Type = "Fuse"
boolean19.addObjects([body8])
doc.recompute()

boolean20 = body24.newObject("PartDesign::Boolean", "Boolean019")
boolean20.Type = "Fuse"
boolean20.addObjects([body9])
doc.recompute()

boolean21 = body24.newObject("PartDesign::Boolean", "Boolean020")
boolean21.Type = "Fuse"
boolean21.addObjects([body10])
doc.recompute()

boolean22 = body24.newObject("PartDesign::Boolean", "Boolean021")
boolean22.Type = "Fuse"
boolean22.addObjects([body11])
body25 = doc.addObject("PartDesign::Body", "Body024")

# Sketch on XY plane
sketch23 = body25.newObject("Sketcher::SketchObject", "Sketch022")
sketch23.AttachmentSupport = (doc.getObject("XY_Plane024"), [""])
sketch23.MapMode = "FlatFace"
sketch23.AttachmentOffset = App.Placement(Vector(0, 0, -1.5), App.Rotation())
sketch23.addGeometry([
    Part.LineSegment(Vector(-10, 32, 0), Vector(-10, 22, 0)),
    Part.LineSegment(Vector(-10, 22, 0), Vector(-4, 22, 0)),
    Part.LineSegment(Vector(-4, 22, 0), Vector(-4, 32, 0)),
    Part.LineSegment(Vector(-4, 32, 0), Vector(-10, 32, 0)),
], False)
sketch23.addConstraint([
    Sketcher.Constraint("Coincident", 0, 2, 1, 1),
    Sketcher.Constraint("Coincident", 1, 2, 2, 1),
    Sketcher.Constraint("Coincident", 2, 2, 3, 1),
    Sketcher.Constraint("Coincident", 3, 2, 0, 1),
    Sketcher.Constraint("Vertical", 0),
    Sketcher.Constraint("Horizontal", 1),
    Sketcher.Constraint("Vertical", 2),
    Sketcher.Constraint("Horizontal", 3),
    Sketcher.Constraint("DistanceX", 1, 1, 1, 2, 6.0),
    Sketcher.Constraint("DistanceY", 0, 2, 0, 1, 10.0),
    Sketcher.Constraint("DistanceX", 0, 2, -1, 1, 10.5),
    Sketcher.Constraint("DistanceY", -1, 1, 0, 2, 22.5),
])
pad23 = body25.newObject("PartDesign::Pad", "Pad022")
pad23.Profile = sketch23
pad23.Length = 10
body26 = doc.addObject("PartDesign::Body", "Body025")

# Sketch on XY plane
sketch24 = body26.newObject("Sketcher::SketchObject", "Sketch023")
sketch24.AttachmentSupport = (doc.getObject("XY_Plane025"), [""])
sketch24.MapMode = "FlatFace"
sketch24.AttachmentOffset = App.Placement(Vector(0, 0, -11.5), App.Rotation())
sketch24.addGeometry([
    Part.LineSegment(Vector(-9.2, 32.5, 0), Vector(-9.2, 22.5, 0)),
    Part.LineSegment(Vector(-9.2, 22.5, 0), Vector(-5.8, 22.5, 0)),
    Part.LineSegment(Vector(-5.8, 22.5, 0), Vector(-5.8, 32.5, 0)),
    Part.LineSegment(Vector(-5.8, 32.5, 0), Vector(-9.2, 32.5, 0)),
], False)
sketch24.addConstraint([
    Sketcher.Constraint("Coincident", 0, 2, 1, 1),
    Sketcher.Constraint("Coincident", 1, 2, 2, 1),
    Sketcher.Constraint("Coincident", 2, 2, 3, 1),
    Sketcher.Constraint("Coincident", 3, 2, 0, 1),
    Sketcher.Constraint("Vertical", 0),
    Sketcher.Constraint("Horizontal", 1),
    Sketcher.Constraint("Vertical", 2),
    Sketcher.Constraint("Horizontal", 3),
    Sketcher.Constraint("DistanceY", 0, 2, 0, 1, 10.0),
    Sketcher.Constraint("DistanceX", 1, 1, 1, 2, 3.3),
    Sketcher.Constraint("DistanceY", -1, 1, 0, 2, 22.5),
    Sketcher.Constraint("DistanceX", 0, 2, -1, 1, 9.15),
])
pad24 = body26.newObject("PartDesign::Pad", "Pad023")
pad24.Profile = sketch24
pad24.Length = 10
body27 = doc.addObject("PartDesign::Body", "Body026")

# Sketch on XY plane
sketch25 = body27.newObject("Sketcher::SketchObject", "Sketch024")
sketch25.AttachmentSupport = (doc.getObject("XY_Plane026"), [""])
sketch25.MapMode = "FlatFace"
sketch25.AttachmentOffset = App.Placement(Vector(0, 0, -6.5), App.Rotation())
sketch25.addGeometry(Part.Circle(Vector(-7.5, 22.5, 0), Vector(0, 0, 1), 1.6), False)
sketch25.addConstraint([
    Sketcher.Constraint("Diameter", 0, 3.3),
    Sketcher.Constraint("DistanceX", 0, 3, -1, 1, 7.5),
    Sketcher.Constraint("DistanceY", -1, 1, 0, 3, 22.5),
])
pad25 = body27.newObject("PartDesign::Pad", "Pad024")
pad25.Profile = sketch25
pad25.Length = 10
body28 = doc.addObject("PartDesign::Body", "Body027")

# Sketch on XY plane
sketch26 = body28.newObject("Sketcher::SketchObject", "Sketch025")
sketch26.AttachmentSupport = (doc.getObject("XY_Plane027"), [""])
sketch26.MapMode = "FlatFace"
sketch26.AttachmentOffset = App.Placement(Vector(0, 0, -1.5), App.Rotation())
sketch26.addGeometry(Part.Circle(Vector(-7.5, 22.5, 0), Vector(0, 0, 1), 3), False)
sketch26.addConstraint([
    Sketcher.Constraint("Diameter", 0, 6.0),
    Sketcher.Constraint("DistanceX", 0, 3, -1, 1, 7.5),
    Sketcher.Constraint("DistanceY", -1, 1, 0, 3, 22.5),
])
pad26 = body28.newObject("PartDesign::Pad", "Pad025")
pad26.Profile = sketch26
pad26.Length = 10
body29 = doc.addObject("PartDesign::Body", "Body028")

# Sketch on XY plane
sketch27 = body29.newObject("Sketcher::SketchObject", "Sketch026")
sketch27.AttachmentSupport = (doc.getObject("XY_Plane028"), [""])
sketch27.MapMode = "FlatFace"
sketch27.addGeometry(Part.Circle(Vector(7.5, 3, 0), Vector(0, 0, 1), 1.4), False)
sketch27.addConstraint([
    Sketcher.Constraint("Diameter", 0, 2.8),
    Sketcher.Constraint("DistanceY", -1, 1, 0, 3, 3.0),
    Sketcher.Constraint("DistanceX", -1, 1, 0, 3, 7.5),
])
pad27 = body29.newObject("PartDesign::Pad", "Pad026")
pad27.Profile = sketch27
pad27.Length = 3
body30 = doc.addObject("PartDesign::Body", "Body029")

# Sketch on XY plane
sketch28 = body30.newObject("Sketcher::SketchObject", "Sketch027")
sketch28.AttachmentSupport = (doc.getObject("XY_Plane029"), [""])
sketch28.MapMode = "FlatFace"
sketch28.AttachmentOffset = App.Placement(Vector(0, 0, -3.5), App.Rotation())
sketch28.addGeometry(Part.Circle(Vector(-7.5, 3, 0), Vector(0, 0, 1), 1.6), False)
sketch28.addConstraint([
    Sketcher.Constraint("Diameter", 0, 3.3),
    Sketcher.Constraint("DistanceY", -1, 1, 0, 3, 3.0),
    Sketcher.Constraint("DistanceX", 0, 3, -1, 1, 7.5),
])
pad28 = body30.newObject("PartDesign::Pad", "Pad027")
pad28.Profile = sketch28
pad28.Length = 10
body31 = doc.addObject("PartDesign::Body", "Body030")

# Sketch on XY plane
sketch29 = body31.newObject("Sketcher::SketchObject", "Sketch028")
sketch29.AttachmentSupport = (doc.getObject("XY_Plane030"), [""])
sketch29.MapMode = "FlatFace"
sketch29.AttachmentOffset = App.Placement(Vector(0, 0, -4.5), App.Rotation())
sketch29.addGeometry([
    Part.LineSegment(Vector(-4, 30, 0), Vector(-4, 18, 0)),
    Part.LineSegment(Vector(-4, 18, 0), Vector(12, 18, 0)),
    Part.LineSegment(Vector(12, 18, 0), Vector(12, 30, 0)),
    Part.LineSegment(Vector(12, 30, 0), Vector(-4, 30, 0)),
], False)
sketch29.addConstraint([
    Sketcher.Constraint("Coincident", 0, 2, 1, 1),
    Sketcher.Constraint("Coincident", 1, 2, 2, 1),
    Sketcher.Constraint("Coincident", 2, 2, 3, 1),
    Sketcher.Constraint("Coincident", 3, 2, 0, 1),
    Sketcher.Constraint("Vertical", 0),
    Sketcher.Constraint("Horizontal", 1),
    Sketcher.Constraint("Vertical", 2),
    Sketcher.Constraint("Horizontal", 3),
    Sketcher.Constraint("DistanceX", 1, 1, 1, 2, 16.0),
    Sketcher.Constraint("DistanceY", 0, 2, 0, 1, 12.0),
    Sketcher.Constraint("DistanceX", 0, 2, -1, 1, 4.0),
    Sketcher.Constraint("DistanceY", -1, 1, 0, 2, 18.0),
])
pad29 = body31.newObject("PartDesign::Pad", "Pad028")
pad29.Profile = sketch29
pad29.Length = 10
body32 = doc.addObject("PartDesign::Body", "Body031")

# Sketch on XY plane
sketch30 = body32.newObject("Sketcher::SketchObject", "Sketch029")
sketch30.AttachmentSupport = (doc.getObject("XY_Plane031"), [""])
sketch30.MapMode = "FlatFace"
sketch30.AttachmentOffset = App.Placement(Vector(0, 0, -2), App.Rotation())
sketch30.addGeometry([
    Part.LineSegment(Vector(-11, 17, 0), Vector(-11, 13, 0)),
    Part.LineSegment(Vector(-11, 13, 0), Vector(11, 13, 0)),
    Part.LineSegment(Vector(11, 13, 0), Vector(11, 17, 0)),
    Part.LineSegment(Vector(11, 17, 0), Vector(-11, 17, 0)),
], False)
sketch30.addConstraint([
    Sketcher.Constraint("Coincident", 0, 2, 1, 1),
    Sketcher.Constraint("Coincident", 1, 2, 2, 1),
    Sketcher.Constraint("Coincident", 2, 2, 3, 1),
    Sketcher.Constraint("Coincident", 3, 2, 0, 1),
    Sketcher.Constraint("Vertical", 0),
    Sketcher.Constraint("Horizontal", 1),
    Sketcher.Constraint("Vertical", 2),
    Sketcher.Constraint("Horizontal", 3),
    Sketcher.Constraint("DistanceX", 1, 1, 1, 2, 22.0),
    Sketcher.Constraint("DistanceY", 0, 2, 0, 1, 4.0),
    Sketcher.Constraint("DistanceX", 0, 2, -1, 1, 11.0),
    Sketcher.Constraint("DistanceY", -1, 1, 0, 2, 13.0),
])
pad30 = body32.newObject("PartDesign::Pad", "Pad029")
pad30.Profile = sketch30
pad30.Length = 5
doc.recompute()

chamfer = body32.newObject("PartDesign::Chamfer", "Chamfer")
chamfer.Base = (pad30, edges_at(pad30, [(0, 13, -2), (0, 17, -2)]))
chamfer.Size = 0.4
body33 = doc.addObject("PartDesign::Body", "Body032")

# Sketch on XY plane
sketch31 = body33.newObject("Sketcher::SketchObject", "Sketch030")
sketch31.AttachmentSupport = (doc.getObject("XY_Plane032"), [""])
sketch31.MapMode = "FlatFace"
sketch31.AttachmentOffset = App.Placement(Vector(0, 0, -3), App.Rotation())
sketch31.addGeometry([
    Part.LineSegment(Vector(-11, 26, 0), Vector(-11, -2, 0)),
    Part.LineSegment(Vector(-11, -2, 0), Vector(11, -2, 0)),
    Part.LineSegment(Vector(11, -2, 0), Vector(11, 26, 0)),
    Part.LineSegment(Vector(11, 26, 0), Vector(-11, 26, 0)),
], False)
sketch31.addConstraint([
    Sketcher.Constraint("Coincident", 0, 2, 1, 1),
    Sketcher.Constraint("Coincident", 1, 2, 2, 1),
    Sketcher.Constraint("Coincident", 2, 2, 3, 1),
    Sketcher.Constraint("Coincident", 3, 2, 0, 1),
    Sketcher.Constraint("Vertical", 0),
    Sketcher.Constraint("Horizontal", 1),
    Sketcher.Constraint("Vertical", 2),
    Sketcher.Constraint("Horizontal", 3),
    Sketcher.Constraint("DistanceX", 1, 1, 1, 2, 22.0),
    Sketcher.Constraint("DistanceY", 0, 2, 0, 1, 28.0),
    Sketcher.Constraint("DistanceX", 0, 2, -1, 1, 11.0),
    Sketcher.Constraint("DistanceY", 0, 2, -1, 1, 2.0),
])
pad31 = body33.newObject("PartDesign::Pad", "Pad030")
pad31.Profile = sketch31
pad31.Length = 3
doc.recompute()

boolean23 = body33.newObject("PartDesign::Boolean", "Boolean022")
boolean23.Type = "Cut"
boolean23.addObjects([body32])
doc.recompute()

boolean24 = body33.newObject("PartDesign::Boolean", "Boolean023")
boolean24.Type = "Cut"
boolean24.addObjects([body31])
doc.recompute()

boolean25 = body33.newObject("PartDesign::Boolean", "Boolean024")
boolean25.Type = "Cut"
boolean25.addObjects([body30])
doc.recompute()

boolean26 = body33.newObject("PartDesign::Boolean", "Boolean025")
boolean26.Type = "Fuse"
boolean26.addObjects([body29])
doc.recompute()

boolean27 = body33.newObject("PartDesign::Boolean", "Boolean026")
boolean27.Type = "Cut"
boolean27.addObjects([body28])
doc.recompute()

boolean28 = body33.newObject("PartDesign::Boolean", "Boolean027")
boolean28.Type = "Cut"
boolean28.addObjects([body27])
body34 = doc.addObject("PartDesign::Body", "Body033")

# Sketch on XY plane
sketch32 = body34.newObject("Sketcher::SketchObject", "Sketch031")
sketch32.AttachmentSupport = (doc.getObject("XY_Plane033"), [""])
sketch32.MapMode = "FlatFace"
sketch32.AttachmentOffset = App.Placement(Vector(0, 0, -3), App.Rotation())
sketch32.addGeometry([
    Part.LineSegment(Vector(-11, 0, 0), Vector(-11, -2, 0)),
    Part.LineSegment(Vector(-11, -2, 0), Vector(11, -2, 0)),
    Part.LineSegment(Vector(11, -2, 0), Vector(11, 0, 0)),
    Part.LineSegment(Vector(11, 0, 0), Vector(-11, 0, 0)),
], False)
sketch32.addConstraint([
    Sketcher.Constraint("Coincident", 0, 2, 1, 1),
    Sketcher.Constraint("Coincident", 1, 2, 2, 1),
    Sketcher.Constraint("Coincident", 2, 2, 3, 1),
    Sketcher.Constraint("Coincident", 3, 2, 0, 1),
    Sketcher.Constraint("Vertical", 0),
    Sketcher.Constraint("Horizontal", 1),
    Sketcher.Constraint("Vertical", 2),
    Sketcher.Constraint("Horizontal", 3),
    Sketcher.Constraint("Symmetric", 2, 2, 3, 2, -1, 1),
    Sketcher.Constraint("DistanceX", 1, 1, 1, 2, 22.0),
    Sketcher.Constraint("DistanceY", 0, 2, 0, 1, 2.0),
])
pad32 = body34.newObject("PartDesign::Pad", "Pad031")
pad32.Profile = sketch32
pad32.Length = 5
body35 = doc.addObject("PartDesign::Body", "Body034")

# Sketch on XY plane
sketch33 = body35.newObject("Sketcher::SketchObject", "Sketch032")
sketch33.AttachmentSupport = (doc.getObject("XY_Plane034"), [""])
sketch33.MapMode = "FlatFace"
sketch33.addGeometry([
    Part.LineSegment(Vector(-11, 18, 0), Vector(-11, 17, 0)),
    Part.LineSegment(Vector(-11, 17, 0), Vector(11, 17, 0)),
    Part.LineSegment(Vector(11, 17, 0), Vector(11, 18, 0)),
    Part.LineSegment(Vector(11, 18, 0), Vector(-11, 18, 0)),
], False)
sketch33.addConstraint([
    Sketcher.Constraint("Coincident", 0, 2, 1, 1),
    Sketcher.Constraint("Coincident", 1, 2, 2, 1),
    Sketcher.Constraint("Coincident", 2, 2, 3, 1),
    Sketcher.Constraint("Coincident", 3, 2, 0, 1),
    Sketcher.Constraint("Vertical", 0),
    Sketcher.Constraint("Horizontal", 1),
    Sketcher.Constraint("Vertical", 2),
    Sketcher.Constraint("Horizontal", 3),
    Sketcher.Constraint("DistanceX", 1, 1, 1, 2, 22.0),
    Sketcher.Constraint("DistanceY", 0, 2, 0, 1, 1.0),
    Sketcher.Constraint("DistanceX", 0, 2, -1, 1, 11.0),
    Sketcher.Constraint("DistanceY", -1, 1, 0, 2, 17.0),
])
pad33 = body35.newObject("PartDesign::Pad", "Pad032")
pad33.Profile = sketch33
pad33.Length = 1.5
doc.recompute()

boolean29 = body35.newObject("PartDesign::Boolean", "Boolean028")
boolean29.Type = "Fuse"
boolean29.addObjects([body33])
doc.recompute()

boolean30 = body35.newObject("PartDesign::Boolean", "Boolean029")
boolean30.Type = "Fuse"
boolean30.addObjects([body34])
doc.recompute()

chamfer2 = body35.newObject("PartDesign::Chamfer", "Chamfer001")
chamfer2.Base = (boolean30, edges_at(boolean30, [(-7.5, 18, 0)]))
chamfer2.Size = 1
doc.recompute()

boolean31 = body35.newObject("PartDesign::Boolean", "Boolean030")
boolean31.Type = "Cut"
boolean31.addObjects([body26])
doc.recompute()

boolean32 = body35.newObject("PartDesign::Boolean", "Boolean031")
boolean32.Type = "Cut"
boolean32.addObjects([body25])
doc.recompute()

chamfer3 = body35.newObject("PartDesign::Chamfer", "Chamfer002")
chamfer3.Base = (boolean32, edges_at(boolean32, [
    (-9.15, 26, -2.25),
    (-9.825, 26, -1.5),
    (-5.85, 26, -2.25),
    (-5.175, 26, -1.5),
]))
chamfer3.Size = 0.4

# Sketch on XY plane
sketch34 = body35.newObject("Sketcher::SketchObject", "Sketch033")
sketch34.AttachmentSupport = (doc.getObject("XY_Plane034"), [""])
sketch34.MapMode = "FlatFace"
sketch34.AttachmentOffset = App.Placement(Vector(0, 0, 1.5), App.Rotation())
sketch34.addGeometry([
    Part.LineSegment(Vector(-11, 26, 0), Vector(-11, 18, 0)),
    Part.LineSegment(Vector(-11, 18, 0), Vector(-4, 18, 0)),
    Part.LineSegment(Vector(-4, 18, 0), Vector(-4, 26, 0)),
    Part.LineSegment(Vector(-4, 26, 0), Vector(-11, 26, 0)),
], False)
sketch34.addConstraint([
    Sketcher.Constraint("Coincident", 0, 2, 1, 1),
    Sketcher.Constraint("Coincident", 1, 2, 2, 1),
    Sketcher.Constraint("Coincident", 2, 2, 3, 1),
    Sketcher.Constraint("Coincident", 3, 2, 0, 1),
    Sketcher.Constraint("Vertical", 0),
    Sketcher.Constraint("Horizontal", 1),
    Sketcher.Constraint("Vertical", 2),
    Sketcher.Constraint("Horizontal", 3),
    Sketcher.Constraint("DistanceX", 1, 1, 1, 2, 7.0),
    Sketcher.Constraint("DistanceY", 0, 2, 0, 1, 8.0),
    Sketcher.Constraint("DistanceX", 0, 2, -1, 1, 11.0),
    Sketcher.Constraint("DistanceY", -1, 1, 0, 2, 18.0),
])
pocket1 = body35.newObject("PartDesign::Pocket", "Pocket")
pocket1.Profile = sketch34
pocket1.Type = "ThroughAll"

doc.recompute()
